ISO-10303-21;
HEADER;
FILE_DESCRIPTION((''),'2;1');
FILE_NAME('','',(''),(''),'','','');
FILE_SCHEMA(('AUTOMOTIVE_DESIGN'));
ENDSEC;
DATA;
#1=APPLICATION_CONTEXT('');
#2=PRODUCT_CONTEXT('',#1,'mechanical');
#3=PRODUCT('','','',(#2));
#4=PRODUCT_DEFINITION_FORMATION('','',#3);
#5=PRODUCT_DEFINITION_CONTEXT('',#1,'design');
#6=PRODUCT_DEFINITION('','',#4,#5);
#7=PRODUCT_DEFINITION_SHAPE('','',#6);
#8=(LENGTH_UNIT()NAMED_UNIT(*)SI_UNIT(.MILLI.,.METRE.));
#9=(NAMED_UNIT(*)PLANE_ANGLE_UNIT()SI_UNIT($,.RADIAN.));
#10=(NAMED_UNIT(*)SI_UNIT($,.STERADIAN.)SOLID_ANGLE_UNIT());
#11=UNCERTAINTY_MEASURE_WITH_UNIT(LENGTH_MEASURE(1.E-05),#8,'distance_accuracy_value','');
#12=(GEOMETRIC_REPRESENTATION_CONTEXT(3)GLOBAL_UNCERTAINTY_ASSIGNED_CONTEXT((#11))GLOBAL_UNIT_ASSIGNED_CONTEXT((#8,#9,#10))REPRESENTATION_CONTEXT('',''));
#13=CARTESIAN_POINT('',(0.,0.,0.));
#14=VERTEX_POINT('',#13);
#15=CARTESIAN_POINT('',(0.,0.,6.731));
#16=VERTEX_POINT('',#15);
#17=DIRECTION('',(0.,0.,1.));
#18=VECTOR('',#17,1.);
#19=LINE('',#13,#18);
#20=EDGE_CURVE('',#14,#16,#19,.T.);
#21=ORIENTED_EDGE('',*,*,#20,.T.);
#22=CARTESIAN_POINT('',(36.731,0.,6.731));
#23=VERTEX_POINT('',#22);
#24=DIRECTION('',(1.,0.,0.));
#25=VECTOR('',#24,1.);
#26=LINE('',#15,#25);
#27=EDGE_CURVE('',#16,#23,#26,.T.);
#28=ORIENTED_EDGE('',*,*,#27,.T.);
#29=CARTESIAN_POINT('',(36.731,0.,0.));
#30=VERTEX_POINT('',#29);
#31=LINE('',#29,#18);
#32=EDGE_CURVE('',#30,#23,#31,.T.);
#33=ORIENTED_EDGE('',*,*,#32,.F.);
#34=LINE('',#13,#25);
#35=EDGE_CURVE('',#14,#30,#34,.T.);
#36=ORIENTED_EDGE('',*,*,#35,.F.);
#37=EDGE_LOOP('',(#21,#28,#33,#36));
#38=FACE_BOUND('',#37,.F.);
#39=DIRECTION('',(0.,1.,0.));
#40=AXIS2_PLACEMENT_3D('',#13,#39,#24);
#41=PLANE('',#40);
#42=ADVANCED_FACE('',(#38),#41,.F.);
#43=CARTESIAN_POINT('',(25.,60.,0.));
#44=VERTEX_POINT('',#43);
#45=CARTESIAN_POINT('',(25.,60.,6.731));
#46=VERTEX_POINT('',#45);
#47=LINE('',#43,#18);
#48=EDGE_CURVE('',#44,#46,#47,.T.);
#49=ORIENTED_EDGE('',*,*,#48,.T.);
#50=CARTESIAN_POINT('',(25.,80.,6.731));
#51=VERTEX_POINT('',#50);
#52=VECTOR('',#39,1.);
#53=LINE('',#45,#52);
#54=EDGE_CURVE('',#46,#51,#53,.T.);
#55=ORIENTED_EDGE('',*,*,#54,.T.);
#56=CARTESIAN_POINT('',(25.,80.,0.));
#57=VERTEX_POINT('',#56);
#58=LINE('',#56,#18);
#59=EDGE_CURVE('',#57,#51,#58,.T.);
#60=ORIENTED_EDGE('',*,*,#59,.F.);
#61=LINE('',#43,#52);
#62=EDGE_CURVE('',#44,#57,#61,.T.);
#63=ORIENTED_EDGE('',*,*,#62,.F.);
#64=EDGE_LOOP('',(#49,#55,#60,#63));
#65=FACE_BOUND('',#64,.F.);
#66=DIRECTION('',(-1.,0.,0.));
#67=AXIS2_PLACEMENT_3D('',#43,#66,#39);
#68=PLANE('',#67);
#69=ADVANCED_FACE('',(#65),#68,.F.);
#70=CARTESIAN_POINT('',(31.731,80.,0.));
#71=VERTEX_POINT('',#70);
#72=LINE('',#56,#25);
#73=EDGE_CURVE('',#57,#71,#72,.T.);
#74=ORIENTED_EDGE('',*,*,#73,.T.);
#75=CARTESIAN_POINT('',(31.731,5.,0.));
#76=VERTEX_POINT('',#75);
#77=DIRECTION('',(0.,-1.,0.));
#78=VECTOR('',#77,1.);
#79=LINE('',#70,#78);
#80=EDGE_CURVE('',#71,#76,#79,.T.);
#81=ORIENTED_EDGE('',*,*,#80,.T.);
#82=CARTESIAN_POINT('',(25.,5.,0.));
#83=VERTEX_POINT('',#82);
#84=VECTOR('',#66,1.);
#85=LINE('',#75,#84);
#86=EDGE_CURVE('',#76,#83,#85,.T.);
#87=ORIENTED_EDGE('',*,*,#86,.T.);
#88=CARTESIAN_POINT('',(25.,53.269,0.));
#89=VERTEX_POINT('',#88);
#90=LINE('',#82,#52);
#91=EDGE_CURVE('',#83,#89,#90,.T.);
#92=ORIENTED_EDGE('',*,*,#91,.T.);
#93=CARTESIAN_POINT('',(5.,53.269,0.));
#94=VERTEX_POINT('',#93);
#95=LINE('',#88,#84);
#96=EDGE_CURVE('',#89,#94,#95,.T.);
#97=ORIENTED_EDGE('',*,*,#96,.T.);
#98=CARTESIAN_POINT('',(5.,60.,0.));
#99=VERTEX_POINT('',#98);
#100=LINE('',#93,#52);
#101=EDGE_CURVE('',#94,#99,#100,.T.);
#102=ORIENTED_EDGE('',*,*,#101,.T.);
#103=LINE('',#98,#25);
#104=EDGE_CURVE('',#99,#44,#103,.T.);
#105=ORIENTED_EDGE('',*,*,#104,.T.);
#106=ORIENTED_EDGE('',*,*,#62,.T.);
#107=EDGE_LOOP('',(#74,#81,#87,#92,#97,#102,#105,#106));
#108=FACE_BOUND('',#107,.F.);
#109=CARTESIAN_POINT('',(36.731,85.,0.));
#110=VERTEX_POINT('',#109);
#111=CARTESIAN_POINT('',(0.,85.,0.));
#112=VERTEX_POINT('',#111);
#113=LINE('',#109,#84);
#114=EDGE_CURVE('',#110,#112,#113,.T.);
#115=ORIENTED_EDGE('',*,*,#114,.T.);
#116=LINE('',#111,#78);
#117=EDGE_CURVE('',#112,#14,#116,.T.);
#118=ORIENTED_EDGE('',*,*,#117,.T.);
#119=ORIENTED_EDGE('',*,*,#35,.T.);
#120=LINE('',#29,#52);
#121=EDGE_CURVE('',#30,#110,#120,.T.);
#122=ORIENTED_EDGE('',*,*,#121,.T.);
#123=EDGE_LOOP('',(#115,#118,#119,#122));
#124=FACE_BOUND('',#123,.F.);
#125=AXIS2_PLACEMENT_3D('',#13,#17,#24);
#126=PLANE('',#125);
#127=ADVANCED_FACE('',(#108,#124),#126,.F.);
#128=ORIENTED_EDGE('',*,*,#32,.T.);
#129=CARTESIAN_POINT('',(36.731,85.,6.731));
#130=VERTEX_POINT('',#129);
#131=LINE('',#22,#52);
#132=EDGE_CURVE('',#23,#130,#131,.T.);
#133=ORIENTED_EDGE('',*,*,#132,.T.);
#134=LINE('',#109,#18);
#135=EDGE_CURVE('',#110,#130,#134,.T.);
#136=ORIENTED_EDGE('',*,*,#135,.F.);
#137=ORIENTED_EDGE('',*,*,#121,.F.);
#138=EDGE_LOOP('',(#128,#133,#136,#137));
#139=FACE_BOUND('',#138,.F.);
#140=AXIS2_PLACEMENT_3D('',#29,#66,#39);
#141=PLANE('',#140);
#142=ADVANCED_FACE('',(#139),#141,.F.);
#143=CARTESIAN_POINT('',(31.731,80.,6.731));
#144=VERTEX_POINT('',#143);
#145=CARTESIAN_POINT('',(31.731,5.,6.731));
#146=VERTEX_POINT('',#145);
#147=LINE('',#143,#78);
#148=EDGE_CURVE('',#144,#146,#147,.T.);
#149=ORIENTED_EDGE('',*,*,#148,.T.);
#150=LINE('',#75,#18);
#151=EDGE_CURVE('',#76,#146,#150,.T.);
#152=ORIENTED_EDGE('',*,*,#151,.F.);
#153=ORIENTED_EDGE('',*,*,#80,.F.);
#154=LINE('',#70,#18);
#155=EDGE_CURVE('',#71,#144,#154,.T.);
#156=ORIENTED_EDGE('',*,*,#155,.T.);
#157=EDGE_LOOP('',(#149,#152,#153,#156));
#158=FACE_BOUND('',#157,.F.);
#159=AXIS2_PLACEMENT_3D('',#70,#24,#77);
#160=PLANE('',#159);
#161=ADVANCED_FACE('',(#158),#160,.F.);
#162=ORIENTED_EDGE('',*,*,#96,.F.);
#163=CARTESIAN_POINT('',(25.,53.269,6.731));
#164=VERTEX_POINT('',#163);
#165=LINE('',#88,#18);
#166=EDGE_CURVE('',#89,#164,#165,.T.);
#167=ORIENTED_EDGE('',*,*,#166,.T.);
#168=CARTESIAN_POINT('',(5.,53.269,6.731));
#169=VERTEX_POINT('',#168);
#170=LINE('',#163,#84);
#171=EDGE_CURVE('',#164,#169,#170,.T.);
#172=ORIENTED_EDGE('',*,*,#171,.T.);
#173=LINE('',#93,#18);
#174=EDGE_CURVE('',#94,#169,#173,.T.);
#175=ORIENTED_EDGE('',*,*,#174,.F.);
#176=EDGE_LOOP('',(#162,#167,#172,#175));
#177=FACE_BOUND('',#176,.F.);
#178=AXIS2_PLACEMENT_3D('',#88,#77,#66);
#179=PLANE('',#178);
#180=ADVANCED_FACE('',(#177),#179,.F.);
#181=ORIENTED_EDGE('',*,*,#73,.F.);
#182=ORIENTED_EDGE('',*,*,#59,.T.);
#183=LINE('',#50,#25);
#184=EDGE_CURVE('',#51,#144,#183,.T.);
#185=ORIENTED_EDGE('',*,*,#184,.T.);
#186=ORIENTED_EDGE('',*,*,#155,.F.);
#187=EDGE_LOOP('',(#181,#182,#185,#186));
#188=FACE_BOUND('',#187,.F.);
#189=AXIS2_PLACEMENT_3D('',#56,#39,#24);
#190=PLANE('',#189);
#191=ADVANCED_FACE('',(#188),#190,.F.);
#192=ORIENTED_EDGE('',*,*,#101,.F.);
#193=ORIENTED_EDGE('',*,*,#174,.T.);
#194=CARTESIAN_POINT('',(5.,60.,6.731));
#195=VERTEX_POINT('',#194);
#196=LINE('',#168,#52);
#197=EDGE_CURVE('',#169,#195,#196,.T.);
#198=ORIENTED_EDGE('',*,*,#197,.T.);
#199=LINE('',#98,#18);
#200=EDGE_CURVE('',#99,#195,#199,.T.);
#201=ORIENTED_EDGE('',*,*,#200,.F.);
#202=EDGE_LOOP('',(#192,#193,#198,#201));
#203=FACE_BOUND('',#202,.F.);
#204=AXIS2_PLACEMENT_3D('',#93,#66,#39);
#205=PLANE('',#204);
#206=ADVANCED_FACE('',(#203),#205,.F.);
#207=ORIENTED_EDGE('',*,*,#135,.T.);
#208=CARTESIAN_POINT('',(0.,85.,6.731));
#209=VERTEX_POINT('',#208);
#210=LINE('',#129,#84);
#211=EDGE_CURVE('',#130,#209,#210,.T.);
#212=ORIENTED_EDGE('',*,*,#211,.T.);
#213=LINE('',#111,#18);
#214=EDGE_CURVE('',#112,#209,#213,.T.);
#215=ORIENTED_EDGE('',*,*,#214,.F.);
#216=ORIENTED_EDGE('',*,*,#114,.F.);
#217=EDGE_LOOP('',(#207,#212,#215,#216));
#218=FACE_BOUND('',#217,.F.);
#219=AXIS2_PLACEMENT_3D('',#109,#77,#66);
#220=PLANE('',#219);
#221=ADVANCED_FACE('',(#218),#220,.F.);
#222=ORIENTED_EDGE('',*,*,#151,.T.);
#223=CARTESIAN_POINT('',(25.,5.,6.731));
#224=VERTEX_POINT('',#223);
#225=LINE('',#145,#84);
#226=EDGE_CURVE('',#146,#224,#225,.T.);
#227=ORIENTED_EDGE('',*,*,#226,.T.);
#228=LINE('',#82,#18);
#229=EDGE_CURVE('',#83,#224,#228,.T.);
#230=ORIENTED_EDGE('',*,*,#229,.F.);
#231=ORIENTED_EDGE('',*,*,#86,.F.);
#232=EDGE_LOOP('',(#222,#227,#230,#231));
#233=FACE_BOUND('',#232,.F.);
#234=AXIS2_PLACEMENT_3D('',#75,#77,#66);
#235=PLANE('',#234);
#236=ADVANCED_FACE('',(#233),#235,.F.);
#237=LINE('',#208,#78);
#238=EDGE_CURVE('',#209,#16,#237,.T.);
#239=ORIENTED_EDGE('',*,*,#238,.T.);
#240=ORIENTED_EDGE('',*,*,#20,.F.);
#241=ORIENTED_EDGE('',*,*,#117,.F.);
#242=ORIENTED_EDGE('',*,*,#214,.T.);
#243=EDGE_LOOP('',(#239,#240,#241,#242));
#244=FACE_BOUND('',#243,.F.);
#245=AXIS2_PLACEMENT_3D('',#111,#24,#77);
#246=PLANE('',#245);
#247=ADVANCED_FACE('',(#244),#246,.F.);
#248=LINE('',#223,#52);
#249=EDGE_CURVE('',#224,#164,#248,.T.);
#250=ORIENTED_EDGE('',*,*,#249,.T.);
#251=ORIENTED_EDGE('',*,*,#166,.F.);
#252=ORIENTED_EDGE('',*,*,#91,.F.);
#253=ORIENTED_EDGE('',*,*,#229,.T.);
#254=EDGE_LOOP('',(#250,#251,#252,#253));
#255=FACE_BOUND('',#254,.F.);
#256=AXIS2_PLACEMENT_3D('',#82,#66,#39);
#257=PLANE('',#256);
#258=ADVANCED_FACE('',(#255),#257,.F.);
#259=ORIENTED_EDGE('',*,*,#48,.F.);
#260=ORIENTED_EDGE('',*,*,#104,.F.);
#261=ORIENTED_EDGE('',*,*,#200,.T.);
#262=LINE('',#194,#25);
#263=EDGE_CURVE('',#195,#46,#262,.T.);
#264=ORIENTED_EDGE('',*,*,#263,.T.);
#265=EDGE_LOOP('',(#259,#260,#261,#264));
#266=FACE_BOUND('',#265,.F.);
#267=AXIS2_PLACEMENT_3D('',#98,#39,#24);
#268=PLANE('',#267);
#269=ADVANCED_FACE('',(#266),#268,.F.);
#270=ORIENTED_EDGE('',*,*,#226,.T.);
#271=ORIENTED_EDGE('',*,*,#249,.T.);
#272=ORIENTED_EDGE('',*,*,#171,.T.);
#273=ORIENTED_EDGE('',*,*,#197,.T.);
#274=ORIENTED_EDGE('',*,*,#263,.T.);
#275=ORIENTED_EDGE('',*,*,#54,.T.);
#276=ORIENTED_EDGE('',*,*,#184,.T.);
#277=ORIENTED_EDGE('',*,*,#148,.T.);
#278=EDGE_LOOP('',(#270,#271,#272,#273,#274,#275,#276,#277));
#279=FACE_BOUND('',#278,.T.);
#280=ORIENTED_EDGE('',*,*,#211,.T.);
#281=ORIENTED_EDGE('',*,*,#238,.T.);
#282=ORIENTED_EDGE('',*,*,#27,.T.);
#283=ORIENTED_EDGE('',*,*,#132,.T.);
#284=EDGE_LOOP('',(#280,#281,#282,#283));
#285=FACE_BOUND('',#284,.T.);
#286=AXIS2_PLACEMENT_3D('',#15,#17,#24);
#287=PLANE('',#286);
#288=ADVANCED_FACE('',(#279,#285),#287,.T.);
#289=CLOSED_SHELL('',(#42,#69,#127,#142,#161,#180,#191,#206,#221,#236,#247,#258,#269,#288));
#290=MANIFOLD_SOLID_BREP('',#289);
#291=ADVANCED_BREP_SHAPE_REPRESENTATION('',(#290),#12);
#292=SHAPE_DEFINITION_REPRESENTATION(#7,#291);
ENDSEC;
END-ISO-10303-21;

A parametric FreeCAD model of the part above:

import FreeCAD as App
import Part
import Sketcher
from FreeCAD import Vector
Q = App.Units.Quantity

doc = App.newDocument("Part")
body = doc.addObject("PartDesign::Body", "Body")

# Sketch on XY plane
sketch1 = doc.addObject("Sketcher::SketchObject", "Sketch")
body.addObject(sketch1)
sketch1.AttachmentSupport = (doc.XY_Plane, [""])
sketch1.MapMode = "FlatFace"
sketch1.addGeometry([
    Part.LineSegment(Vector(0, 85, 0), Vector(0, 0, 0)),  # 0
    Part.LineSegment(Vector(0, 0, 0), Vector(36.731, 0, 0)),  # 1
    Part.LineSegment(Vector(36.731, 0, 0), Vector(36.731, 85, 0)),  # 2
    Part.LineSegment(Vector(36.731, 85, 0), Vector(0, 85, 0)),  # 3
    Part.LineSegment(Vector(31.731, 5, 0), Vector(25, 5, 0)),  # 4
    Part.LineSegment(Vector(25, 5, 0), Vector(25, 53.269, 0)),  # 5
    Part.LineSegment(Vector(25, 53.269, 0), Vector(5, 53.269, 0)),  # 6
    Part.LineSegment(Vector(5, 53.269, 0), Vector(5, 60, 0)),  # 7
    Part.LineSegment(Vector(5, 60, 0), Vector(25, 60, 0)),  # 8
    Part.LineSegment(Vector(25, 60, 0), Vector(25, 80, 0)),  # 9
    Part.LineSegment(Vector(25, 80, 0), Vector(31.731, 80, 0)),  # 10
    Part.LineSegment(Vector(31.731, 80, 0), Vector(31.731, 5, 0)),  # 11
], False)
sketch1.addConstraint([
    Sketcher.Constraint("Coincident", 0, 2, 1, 1),
    Sketcher.Constraint("Coincident", 1, 2, 2, 1),
    Sketcher.Constraint("Coincident", 2, 2, 3, 1),
    Sketcher.Constraint("Coincident", 3, 2, 0, 1),
    Sketcher.Constraint("Coincident", 4, 2, 5, 1),
    Sketcher.Constraint("Coincident", 5, 2, 6, 1),
    Sketcher.Constraint("Coincident", 6, 2, 7, 1),
    Sketcher.Constraint("Coincident", 7, 2, 8, 1),
    Sketcher.Constraint("Coincident", 8, 2, 9, 1),
    Sketcher.Constraint("Coincident", 9, 2, 10, 1),
    Sketcher.Constraint("Coincident", 10, 2, 11, 1),
    Sketcher.Constraint("Coincident", 11, 2, 4, 1),
    Sketcher.Constraint("Vertical", 0),
    Sketcher.Constraint("Horizontal", 1),
    Sketcher.Constraint("Vertical", 2),
    Sketcher.Constraint("Horizontal", 3),
    Sketcher.Constraint("Horizontal", 4),
    Sketcher.Constraint("Vertical", 5),
    Sketcher.Constraint("Horizontal", 6),
    Sketcher.Constraint("Vertical", 7),
    Sketcher.Constraint("Horizontal", 8),
    Sketcher.Constraint("Vertical", 9),
    Sketcher.Constraint("Horizontal", 10),
    Sketcher.Constraint("Vertical", 11),
    Sketcher.Constraint("Coincident", 0, 2, -1, 1),
    Sketcher.Constraint("Vertical", 5, 2, 8, 2),
    Sketcher.Constraint("Equal", 10, 7),
    Sketcher.Constraint("Equal", 8, 9),
    Sketcher.Constraint("DistanceX", 6, 2, 6, 1, Q("20 mm")),
    Sketcher.Constraint("DistanceY", 11, 2, 11, 1, Q("75 mm")),
    Sketcher.Constraint("DistanceY", -1, 1, 4, 2, Q("5 mm")),
    Sketcher.Constraint("DistanceX", -1, 1, 6, 2, Q("5 mm")),
    Sketcher.Constraint("DistanceY", 9, 2, 2, 2, Q("5 mm")),
    Sketcher.Constraint("DistanceX", 10, 2, 2, 2, Q("5 mm")),
    Sketcher.Constraint("DistanceX", 4, 2, 4, 1, Q("6.731 mm")),
])
pad1 = doc.addObject("PartDesign::Pad", "Pad")
body.addObject(pad1)
pad1.Profile = sketch1
pad1.Length = 6.731

doc.recompute()
